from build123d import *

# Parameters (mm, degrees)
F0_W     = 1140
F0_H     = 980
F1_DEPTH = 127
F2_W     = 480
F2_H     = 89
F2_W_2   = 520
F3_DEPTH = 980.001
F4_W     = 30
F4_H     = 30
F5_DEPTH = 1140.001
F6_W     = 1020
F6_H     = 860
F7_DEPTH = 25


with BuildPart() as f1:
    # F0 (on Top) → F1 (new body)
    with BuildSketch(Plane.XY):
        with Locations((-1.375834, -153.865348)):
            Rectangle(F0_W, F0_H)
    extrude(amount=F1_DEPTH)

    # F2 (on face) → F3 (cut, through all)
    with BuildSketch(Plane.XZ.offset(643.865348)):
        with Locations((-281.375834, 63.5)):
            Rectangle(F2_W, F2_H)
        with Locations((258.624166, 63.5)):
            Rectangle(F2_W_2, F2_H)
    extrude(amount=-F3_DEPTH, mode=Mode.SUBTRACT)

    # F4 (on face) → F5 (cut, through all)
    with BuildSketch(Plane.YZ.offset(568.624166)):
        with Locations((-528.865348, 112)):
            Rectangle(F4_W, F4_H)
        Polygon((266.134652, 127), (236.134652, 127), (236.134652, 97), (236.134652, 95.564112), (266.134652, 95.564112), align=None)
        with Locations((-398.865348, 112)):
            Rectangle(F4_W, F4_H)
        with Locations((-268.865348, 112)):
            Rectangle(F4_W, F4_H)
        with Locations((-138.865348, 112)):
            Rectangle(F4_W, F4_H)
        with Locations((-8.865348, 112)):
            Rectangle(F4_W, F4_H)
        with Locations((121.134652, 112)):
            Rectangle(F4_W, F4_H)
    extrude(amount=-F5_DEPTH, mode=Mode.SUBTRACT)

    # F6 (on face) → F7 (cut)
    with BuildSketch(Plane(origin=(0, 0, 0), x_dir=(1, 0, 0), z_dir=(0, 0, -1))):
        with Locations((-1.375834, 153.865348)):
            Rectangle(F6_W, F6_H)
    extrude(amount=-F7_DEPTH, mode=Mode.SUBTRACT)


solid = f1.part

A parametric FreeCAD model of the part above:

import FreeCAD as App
import Part
import Sketcher

V = App.Vector


def add_polygon(sketch, points):
    """Adds a closed chain of lines whose ends are joined by coincident constraints."""
    first, n = sketch.GeometryCount, len(points)
    for a, b in zip(points, points[1:] + points[:1]):
        sketch.addGeometry(Part.LineSegment(App.Vector(*a, 0), App.Vector(*b, 0)), False)
    for i in range(n):
        sketch.addConstraint(Sketcher.Constraint("Coincident", first + i, 2, first + (i + 1) % n, 1))

doc = App.newDocument("Part")
body = doc.addObject("PartDesign::Body", "Body")

# Sketch on XY plane
sketch1 = body.newObject("Sketcher::SketchObject", "Sketch")
sketch1.AttachmentSupport = (doc.getObject("XY_Plane"), [""])
sketch1.MapMode = "FlatFace"
add_polygon(sketch1, [(-571, 336), (-571, -644), (569, -644), (569, 336)])  # lines 0-3
sketch1.addConstraint([
    Sketcher.Constraint("Vertical", 0),
    Sketcher.Constraint("Horizontal", 1),
    Sketcher.Constraint("Vertical", 2),
    Sketcher.Constraint("Horizontal", 3),
    Sketcher.Constraint("DistanceX", 1, 1, 1, 2, 1140.0),
    Sketcher.Constraint("DistanceY", 0, 2, 0, 1, 980.0),
    Sketcher.Constraint("DistanceY", 0, 2, -1, 1, 643.865348),
    Sketcher.Constraint("DistanceX", 0, 2, -1, 1, 571.375834),
])
pad1 = body.newObject("PartDesign::Pad", "Pad")
pad1.Profile = sketch1
pad1.Length = 127

# Sketch on XZ plane
sketch2 = body.newObject("Sketcher::SketchObject", "Sketch001")
sketch2.AttachmentSupport = (doc.getObject("XZ_Plane"), [""])
sketch2.MapMode = "FlatFace"
sketch2.AttachmentOffset = App.Placement(V(0, 0, 643.865348), App.Rotation())
add_polygon(sketch2, [(-521, 108), (-521, 19), (-41, 19), (-41, 108)])  # lines 0-3
add_polygon(sketch2, [(-1, 108), (-1, 19), (519, 19), (519, 108)])  # lines 4-7
sketch2.addConstraint([
    Sketcher.Constraint("Vertical", 0),
    Sketcher.Constraint("Horizontal", 1),
    Sketcher.Constraint("Vertical", 2),
    Sketcher.Constraint("Horizontal", 3),
    Sketcher.Constraint("Vertical", 4),
    Sketcher.Constraint("Horizontal", 5),
    Sketcher.Constraint("Vertical", 6),
    Sketcher.Constraint("Horizontal", 7),
    Sketcher.Constraint("Horizontal", 1, 2, 4, 2),
    Sketcher.Constraint("Horizontal", 3, 2, 6, 2),
    Sketcher.Constraint("DistanceX", 1, 1, 1, 2, 480.0),
    Sketcher.Constraint("DistanceX", 5, 1, 5, 2, 520.0),
    Sketcher.Constraint("DistanceY", 0, 2, 0, 1, 89.0),
    Sketcher.Constraint("DistanceY", -1, 1, 0, 2, 19.0),
    Sketcher.Constraint("DistanceX", 1, 2, 4, 2, 40.0),
    Sketcher.Constraint("DistanceX", 0, 2, -1, 1, 521.375834),
])
pocket1 = body.newObject("PartDesign::Pocket", "Pocket")
pocket1.Profile = sketch2
pocket1.Type = "ThroughAll"

# Sketch on YZ plane
sketch3 = body.newObject("Sketcher::SketchObject", "Sketch002")
sketch3.AttachmentSupport = (doc.getObject("YZ_Plane"), [""])
sketch3.MapMode = "FlatFace"
sketch3.AttachmentOffset = App.Placement(V(0, 0, 568.624166), App.Rotation())
add_polygon(sketch3, [(-544, 127), (-544, 97), (-514, 97), (-514, 127)])  # lines 0-3
add_polygon(sketch3, [(266, 127), (236, 127), (236, 96), (266, 96)])  # lines 4-7
add_polygon(sketch3, [(-414, 127), (-414, 97), (-384, 97), (-384, 127)])  # lines 8-11
add_polygon(sketch3, [(-284, 127), (-284, 97), (-254, 97), (-254, 127)])  # lines 12-15
add_polygon(sketch3, [(-154, 127), (-154, 97), (-124, 97), (-124, 127)])  # lines 16-19
add_polygon(sketch3, [(-24, 127), (-24, 97), (6, 97), (6, 127)])  # lines 20-23
add_polygon(sketch3, [(106, 127), (106, 97), (136, 97), (136, 127)])  # lines 24-27
sketch3.addConstraint([
    Sketcher.Constraint("Vertical", 0),
    Sketcher.Constraint("Horizontal", 1),
    Sketcher.Constraint("Vertical", 2),
    Sketcher.Constraint("Horizontal", 3),
    Sketcher.Constraint("Horizontal", 4),
    Sketcher.Constraint("Vertical", 5),
    Sketcher.Constraint("Horizontal", 6),
    Sketcher.Constraint("Vertical", 7),
    Sketcher.Constraint("Vertical", 8),
    Sketcher.Constraint("Horizontal", 9),
    Sketcher.Constraint("Vertical", 10),
    Sketcher.Constraint("Horizontal", 11),
    Sketcher.Constraint("Vertical", 12),
    Sketcher.Constraint("Horizontal", 13),
    Sketcher.Constraint("Vertical", 14),
    Sketcher.Constraint("Horizontal", 15),
    Sketcher.Constraint("Vertical", 16),
    Sketcher.Constraint("Horizontal", 17),
    Sketcher.Constraint("Vertical", 18),
    Sketcher.Constraint("Horizontal", 19),
    Sketcher.Constraint("Vertical", 20),
    Sketcher.Constraint("Horizontal", 21),
    Sketcher.Constraint("Vertical", 22),
    Sketcher.Constraint("Horizontal", 23),
    Sketcher.Constraint("Vertical", 24),
    Sketcher.Constraint("Horizontal", 25),
    Sketcher.Constraint("Vertical", 26),
    Sketcher.Constraint("Horizontal", 27),
    Sketcher.Constraint("Horizontal", 3, 2, 4, 2),
    Sketcher.Constraint("Horizontal", 1, 2, 8, 2),
    Sketcher.Constraint("Horizontal", 7, 2, 10, 2),
    Sketcher.Constraint("Horizontal", 9, 2, 12, 2),
    Sketcher.Constraint("Horizontal", 11, 2, 14, 2),
    Sketcher.Constraint("Horizontal", 13, 2, 16, 2),
    Sketcher.Constraint("Horizontal", 15, 2, 18, 2),
    Sketcher.Constraint("Horizontal", 17, 2, 20, 2),
    Sketcher.Constraint("Horizontal", 19, 2, 22, 2),
    Sketcher.Constraint("Horizontal", 21, 2, 24, 2),
    Sketcher.Constraint("Horizontal", 23, 2, 26, 2),
    Sketcher.Constraint("Equal", 3, 4),
    Sketcher.Constraint("Equal", 6, 9),
    Sketcher.Constraint("Equal", 11, 13),
    Sketcher.Constraint("Equal", 15, 17),
    Sketcher.Constraint("Equal", 19, 21),
    Sketcher.Constraint("Equal", 23, 25),
    Sketcher.Constraint("Equal", 27, 0),
    Sketcher.Constraint("DistanceX", 1, 1, 1, 2, 30.0),
    Sketcher.Constraint("DistanceY", -1, 1, 0, 2, 97.0),
    Sketcher.Constraint("DistanceX", 2, 2, 4, 2, 750.0),
    Sketcher.Constraint("DistanceX", 1, 2, 8, 2, 100.0),
    Sketcher.Constraint("DistanceX", 9, 2, 12, 2, 100.0),
    Sketcher.Constraint("DistanceX", 13, 2, 16, 2, 100.0),
    Sketcher.Constraint("DistanceX", 17, 2, 20, 2, 100.0),
    Sketcher.Constraint("DistanceX", 21, 2, 24, 2, 100.0),
    Sketcher.Constraint("DistanceY", 5, 2, 5, 1, 31.435888),
    Sketcher.Constraint("DistanceX", 0, 2, -1, 1, 543.865348),
])
pocket2 = body.newObject("PartDesign::Pocket", "Pocket001")
pocket2.Profile = sketch3
pocket2.Type = "ThroughAll"

# Sketch on XY plane
sketch4 = body.newObject("Sketcher::SketchObject", "Sketch003")
sketch4.AttachmentSupport = (doc.getObject("XY_Plane"), [""])
sketch4.MapMode = "FlatFace"
add_polygon(sketch4, [(-511, -584), (-511, 276), (509, 276), (509, -584)])  # lines 0-3
sketch4.addConstraint([
    Sketcher.Constraint("Vertical", 0),
    Sketcher.Constraint("Horizontal", 1),
    Sketcher.Constraint("Vertical", 2),
    Sketcher.Constraint("Horizontal", 3),
    Sketcher.Constraint("DistanceX", 1, 1, 1, 2, 1020.0),
    Sketcher.Constraint("DistanceY", 0, 1, 0, 2, 860.0),
    Sketcher.Constraint("DistanceY", -1, 1, 0, 2, 276.134652),
    Sketcher.Constraint("DistanceX", 0, 2, -1, 1, 511.375834),
])
pocket3 = body.newObject("PartDesign::Pocket", "Pocket002")
pocket3.Profile = sketch4
pocket3.Length = 25
pocket3.Reversed = True

doc.recompute()
